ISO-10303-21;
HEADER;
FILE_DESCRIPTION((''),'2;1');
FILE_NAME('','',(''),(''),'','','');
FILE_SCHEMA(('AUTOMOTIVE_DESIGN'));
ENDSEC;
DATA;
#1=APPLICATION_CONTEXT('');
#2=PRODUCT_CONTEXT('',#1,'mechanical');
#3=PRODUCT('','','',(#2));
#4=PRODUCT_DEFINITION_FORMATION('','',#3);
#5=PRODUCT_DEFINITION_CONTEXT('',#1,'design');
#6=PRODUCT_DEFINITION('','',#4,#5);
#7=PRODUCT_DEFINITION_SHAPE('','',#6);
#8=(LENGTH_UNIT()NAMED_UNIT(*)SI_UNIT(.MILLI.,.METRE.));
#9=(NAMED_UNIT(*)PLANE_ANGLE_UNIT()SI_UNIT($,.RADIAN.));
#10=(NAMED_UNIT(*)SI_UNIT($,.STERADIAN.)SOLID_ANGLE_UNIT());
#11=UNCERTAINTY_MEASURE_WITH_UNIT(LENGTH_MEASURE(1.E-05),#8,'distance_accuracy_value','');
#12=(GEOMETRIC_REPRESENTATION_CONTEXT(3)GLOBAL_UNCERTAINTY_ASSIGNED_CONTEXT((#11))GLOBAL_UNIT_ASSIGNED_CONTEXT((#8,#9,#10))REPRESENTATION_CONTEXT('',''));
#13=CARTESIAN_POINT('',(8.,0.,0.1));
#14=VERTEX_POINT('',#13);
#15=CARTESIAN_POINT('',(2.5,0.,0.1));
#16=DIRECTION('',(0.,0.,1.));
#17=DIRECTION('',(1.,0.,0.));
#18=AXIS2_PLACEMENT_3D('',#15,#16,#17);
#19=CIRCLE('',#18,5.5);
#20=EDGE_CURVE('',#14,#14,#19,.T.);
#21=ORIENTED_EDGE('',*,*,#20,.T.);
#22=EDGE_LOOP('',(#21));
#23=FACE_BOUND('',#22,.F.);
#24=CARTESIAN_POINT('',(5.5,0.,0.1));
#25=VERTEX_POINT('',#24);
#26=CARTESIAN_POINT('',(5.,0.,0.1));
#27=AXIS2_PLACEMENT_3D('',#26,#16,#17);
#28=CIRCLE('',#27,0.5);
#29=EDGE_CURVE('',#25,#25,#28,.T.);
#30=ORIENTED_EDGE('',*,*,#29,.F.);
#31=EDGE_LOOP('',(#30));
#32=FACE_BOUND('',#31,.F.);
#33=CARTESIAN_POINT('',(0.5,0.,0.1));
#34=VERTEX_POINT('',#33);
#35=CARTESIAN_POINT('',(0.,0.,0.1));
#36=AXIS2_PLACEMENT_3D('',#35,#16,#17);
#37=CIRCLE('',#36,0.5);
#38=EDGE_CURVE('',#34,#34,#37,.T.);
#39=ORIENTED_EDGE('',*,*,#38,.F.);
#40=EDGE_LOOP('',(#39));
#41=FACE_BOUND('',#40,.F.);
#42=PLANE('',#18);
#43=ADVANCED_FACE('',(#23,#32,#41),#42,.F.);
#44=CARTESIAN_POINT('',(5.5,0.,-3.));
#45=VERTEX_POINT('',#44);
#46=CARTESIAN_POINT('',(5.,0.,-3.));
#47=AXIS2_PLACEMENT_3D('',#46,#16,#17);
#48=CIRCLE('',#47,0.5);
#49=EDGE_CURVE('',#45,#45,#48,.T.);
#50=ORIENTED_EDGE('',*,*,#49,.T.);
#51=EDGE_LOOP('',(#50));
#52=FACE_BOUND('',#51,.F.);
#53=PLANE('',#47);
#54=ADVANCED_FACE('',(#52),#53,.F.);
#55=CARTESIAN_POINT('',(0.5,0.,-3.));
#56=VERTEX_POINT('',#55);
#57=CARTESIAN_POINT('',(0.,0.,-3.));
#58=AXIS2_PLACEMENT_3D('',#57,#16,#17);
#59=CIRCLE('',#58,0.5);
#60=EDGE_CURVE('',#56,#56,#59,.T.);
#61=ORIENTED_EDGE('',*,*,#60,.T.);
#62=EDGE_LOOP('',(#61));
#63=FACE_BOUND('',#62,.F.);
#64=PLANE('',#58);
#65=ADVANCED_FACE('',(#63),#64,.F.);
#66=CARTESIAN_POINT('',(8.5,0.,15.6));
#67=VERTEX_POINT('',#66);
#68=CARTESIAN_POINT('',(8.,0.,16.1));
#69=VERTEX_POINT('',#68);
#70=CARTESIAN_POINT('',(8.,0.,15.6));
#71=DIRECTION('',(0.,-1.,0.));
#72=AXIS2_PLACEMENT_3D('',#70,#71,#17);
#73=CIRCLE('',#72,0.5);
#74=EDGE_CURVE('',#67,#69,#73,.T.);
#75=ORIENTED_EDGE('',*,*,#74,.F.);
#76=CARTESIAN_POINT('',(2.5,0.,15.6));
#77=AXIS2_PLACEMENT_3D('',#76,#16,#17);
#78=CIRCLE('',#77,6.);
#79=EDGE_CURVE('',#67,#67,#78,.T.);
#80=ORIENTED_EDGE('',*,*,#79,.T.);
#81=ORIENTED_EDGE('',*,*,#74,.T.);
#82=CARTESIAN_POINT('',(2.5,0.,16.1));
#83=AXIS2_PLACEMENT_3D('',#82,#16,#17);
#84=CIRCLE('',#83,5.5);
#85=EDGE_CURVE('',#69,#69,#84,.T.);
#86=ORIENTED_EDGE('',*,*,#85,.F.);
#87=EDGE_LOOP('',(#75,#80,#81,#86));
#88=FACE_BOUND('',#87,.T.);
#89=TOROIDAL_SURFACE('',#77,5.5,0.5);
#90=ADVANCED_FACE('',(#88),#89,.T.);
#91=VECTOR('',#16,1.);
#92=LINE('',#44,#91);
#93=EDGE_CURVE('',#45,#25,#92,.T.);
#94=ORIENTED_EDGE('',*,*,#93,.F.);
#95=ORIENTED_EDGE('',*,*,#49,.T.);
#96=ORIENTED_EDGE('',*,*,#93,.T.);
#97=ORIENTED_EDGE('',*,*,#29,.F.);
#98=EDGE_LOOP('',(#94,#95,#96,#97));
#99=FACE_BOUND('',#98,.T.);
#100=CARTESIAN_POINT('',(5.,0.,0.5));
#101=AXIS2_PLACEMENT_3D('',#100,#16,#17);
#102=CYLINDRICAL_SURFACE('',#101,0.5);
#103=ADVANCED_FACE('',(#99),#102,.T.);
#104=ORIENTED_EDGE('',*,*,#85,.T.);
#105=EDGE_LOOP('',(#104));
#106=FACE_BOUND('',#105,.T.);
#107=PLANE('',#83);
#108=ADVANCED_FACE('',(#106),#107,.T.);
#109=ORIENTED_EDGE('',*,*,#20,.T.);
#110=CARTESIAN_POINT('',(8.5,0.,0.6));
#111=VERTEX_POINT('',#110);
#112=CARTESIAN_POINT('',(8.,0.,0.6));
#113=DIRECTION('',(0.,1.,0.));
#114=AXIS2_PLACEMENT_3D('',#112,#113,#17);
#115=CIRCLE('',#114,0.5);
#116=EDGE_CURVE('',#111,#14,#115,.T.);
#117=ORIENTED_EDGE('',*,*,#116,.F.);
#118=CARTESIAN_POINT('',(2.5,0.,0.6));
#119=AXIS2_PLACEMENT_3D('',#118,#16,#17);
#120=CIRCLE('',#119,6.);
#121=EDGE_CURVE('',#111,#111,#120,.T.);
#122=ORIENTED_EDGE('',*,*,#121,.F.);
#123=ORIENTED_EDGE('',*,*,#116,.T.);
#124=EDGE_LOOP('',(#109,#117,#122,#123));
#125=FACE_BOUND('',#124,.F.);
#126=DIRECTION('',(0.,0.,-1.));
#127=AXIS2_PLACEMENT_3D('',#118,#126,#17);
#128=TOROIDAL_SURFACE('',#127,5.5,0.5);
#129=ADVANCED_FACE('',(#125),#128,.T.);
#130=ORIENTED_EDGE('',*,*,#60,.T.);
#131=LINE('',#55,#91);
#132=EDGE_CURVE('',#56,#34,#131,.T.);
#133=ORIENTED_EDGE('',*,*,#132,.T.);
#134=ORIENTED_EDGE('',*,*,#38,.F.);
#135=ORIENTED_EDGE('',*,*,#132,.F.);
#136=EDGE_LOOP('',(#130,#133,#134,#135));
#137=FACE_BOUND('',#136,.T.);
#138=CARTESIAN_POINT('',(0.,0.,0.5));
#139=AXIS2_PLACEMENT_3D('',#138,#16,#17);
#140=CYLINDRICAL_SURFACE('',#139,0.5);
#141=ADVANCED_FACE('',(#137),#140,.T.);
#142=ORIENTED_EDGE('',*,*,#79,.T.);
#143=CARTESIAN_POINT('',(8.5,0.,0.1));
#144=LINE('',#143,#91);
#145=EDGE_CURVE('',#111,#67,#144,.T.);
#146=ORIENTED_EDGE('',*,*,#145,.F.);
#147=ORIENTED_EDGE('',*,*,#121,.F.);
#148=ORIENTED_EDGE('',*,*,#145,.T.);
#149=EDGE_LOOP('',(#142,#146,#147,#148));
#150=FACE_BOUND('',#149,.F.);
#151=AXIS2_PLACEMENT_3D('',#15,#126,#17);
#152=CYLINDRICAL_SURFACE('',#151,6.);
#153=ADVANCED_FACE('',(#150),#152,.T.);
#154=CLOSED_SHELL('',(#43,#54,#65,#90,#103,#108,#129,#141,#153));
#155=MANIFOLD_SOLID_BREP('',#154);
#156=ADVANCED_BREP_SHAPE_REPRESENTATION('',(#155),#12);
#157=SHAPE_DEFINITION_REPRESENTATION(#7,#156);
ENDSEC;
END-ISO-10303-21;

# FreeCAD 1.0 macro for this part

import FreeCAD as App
import Part
import Sketcher
from FreeCAD import Vector


def edges_at(feature, points):
    """Names of the edges that pass closest to the given points."""
    edges = feature.Shape.Edges
    near = lambda p: min(range(len(edges)), key=lambda i: edges[i].distToShape(Part.Vertex(*p))[0])
    return sorted({f"Edge{near(p) + 1}" for p in points})

doc = App.newDocument("Part")
body = doc.addObject("PartDesign::Body", "Body")
body.AllowCompound = True

# Sketch on XY plane
sketch1 = doc.addObject("Sketcher::SketchObject", "Sketch")
body.addObject(sketch1)
sketch1.AttachmentSupport = (doc.XY_Plane, [""])
sketch1.MapMode = "FlatFace"
sketch1.AttachmentOffset = App.Placement(Vector(0, 0, 0.5), App.Rotation())
sketch1.addGeometry([
    Part.Circle(Vector(0, 0, 0), Vector(0, 0, 1), 0.5),
    Part.Circle(Vector(5, 0, 0), Vector(0, 0, 1), 0.5),
], False)
sketch1.addConstraint([
    Sketcher.Constraint("Coincident", 0, 3, -1, 1),
    Sketcher.Constraint("Equal", 0, 1),
    Sketcher.Constraint("PointOnObject", 1, 3, -1),
    Sketcher.Constraint("Diameter", 0, 1.0),
    Sketcher.Constraint("DistanceX", -1, 1, 1, 3, 5.0),
])
pad1 = doc.addObject("PartDesign::Pad", "Pad")
body.addObject(pad1)
pad1.Profile = sketch1
pad1.Type = "TwoLengths"
pad1.Length = 8
pad1.Length2 = 3.5
body2 = doc.addObject("PartDesign::Body", "Body001")

# Sketch on XY plane
sketch2 = doc.addObject("Sketcher::SketchObject", "Sketch001")
body2.addObject(sketch2)
sketch2.AttachmentSupport = (doc.getObject("XY_Plane001"), [""])
sketch2.MapMode = "FlatFace"
sketch2.AttachmentOffset = App.Placement(Vector(0, 0, 0.1), App.Rotation())
sketch2.addGeometry(Part.Circle(Vector(2.5, 0, 0), Vector(0, 0, 1), 6), False)
sketch2.addConstraint([
    Sketcher.Constraint("PointOnObject", 0, 3, -1),
    Sketcher.Constraint("Diameter", 0, 12.0),
    Sketcher.Constraint("DistanceX", -1, 1, 0, 3, 2.5),
])
pad2 = doc.addObject("PartDesign::Pad", "Pad001")
body2.addObject(pad2)
pad2.Profile = sketch2
pad2.Length = 16
doc.recompute()

fillet = doc.addObject("PartDesign::Fillet", "Fillet")
body2.addObject(fillet)
fillet.Base = (pad2, edges_at(pad2, [(-3.5, 0, 0.1), (-3.5, 0, 16.1)]))
fillet.Radius = 0.5
doc.recompute()

boolean = doc.addObject("PartDesign::Boolean", "Boolean")
body2.addObject(boolean)
boolean.Type = "Fuse"
boolean.addObjects([body])

doc.recompute()
